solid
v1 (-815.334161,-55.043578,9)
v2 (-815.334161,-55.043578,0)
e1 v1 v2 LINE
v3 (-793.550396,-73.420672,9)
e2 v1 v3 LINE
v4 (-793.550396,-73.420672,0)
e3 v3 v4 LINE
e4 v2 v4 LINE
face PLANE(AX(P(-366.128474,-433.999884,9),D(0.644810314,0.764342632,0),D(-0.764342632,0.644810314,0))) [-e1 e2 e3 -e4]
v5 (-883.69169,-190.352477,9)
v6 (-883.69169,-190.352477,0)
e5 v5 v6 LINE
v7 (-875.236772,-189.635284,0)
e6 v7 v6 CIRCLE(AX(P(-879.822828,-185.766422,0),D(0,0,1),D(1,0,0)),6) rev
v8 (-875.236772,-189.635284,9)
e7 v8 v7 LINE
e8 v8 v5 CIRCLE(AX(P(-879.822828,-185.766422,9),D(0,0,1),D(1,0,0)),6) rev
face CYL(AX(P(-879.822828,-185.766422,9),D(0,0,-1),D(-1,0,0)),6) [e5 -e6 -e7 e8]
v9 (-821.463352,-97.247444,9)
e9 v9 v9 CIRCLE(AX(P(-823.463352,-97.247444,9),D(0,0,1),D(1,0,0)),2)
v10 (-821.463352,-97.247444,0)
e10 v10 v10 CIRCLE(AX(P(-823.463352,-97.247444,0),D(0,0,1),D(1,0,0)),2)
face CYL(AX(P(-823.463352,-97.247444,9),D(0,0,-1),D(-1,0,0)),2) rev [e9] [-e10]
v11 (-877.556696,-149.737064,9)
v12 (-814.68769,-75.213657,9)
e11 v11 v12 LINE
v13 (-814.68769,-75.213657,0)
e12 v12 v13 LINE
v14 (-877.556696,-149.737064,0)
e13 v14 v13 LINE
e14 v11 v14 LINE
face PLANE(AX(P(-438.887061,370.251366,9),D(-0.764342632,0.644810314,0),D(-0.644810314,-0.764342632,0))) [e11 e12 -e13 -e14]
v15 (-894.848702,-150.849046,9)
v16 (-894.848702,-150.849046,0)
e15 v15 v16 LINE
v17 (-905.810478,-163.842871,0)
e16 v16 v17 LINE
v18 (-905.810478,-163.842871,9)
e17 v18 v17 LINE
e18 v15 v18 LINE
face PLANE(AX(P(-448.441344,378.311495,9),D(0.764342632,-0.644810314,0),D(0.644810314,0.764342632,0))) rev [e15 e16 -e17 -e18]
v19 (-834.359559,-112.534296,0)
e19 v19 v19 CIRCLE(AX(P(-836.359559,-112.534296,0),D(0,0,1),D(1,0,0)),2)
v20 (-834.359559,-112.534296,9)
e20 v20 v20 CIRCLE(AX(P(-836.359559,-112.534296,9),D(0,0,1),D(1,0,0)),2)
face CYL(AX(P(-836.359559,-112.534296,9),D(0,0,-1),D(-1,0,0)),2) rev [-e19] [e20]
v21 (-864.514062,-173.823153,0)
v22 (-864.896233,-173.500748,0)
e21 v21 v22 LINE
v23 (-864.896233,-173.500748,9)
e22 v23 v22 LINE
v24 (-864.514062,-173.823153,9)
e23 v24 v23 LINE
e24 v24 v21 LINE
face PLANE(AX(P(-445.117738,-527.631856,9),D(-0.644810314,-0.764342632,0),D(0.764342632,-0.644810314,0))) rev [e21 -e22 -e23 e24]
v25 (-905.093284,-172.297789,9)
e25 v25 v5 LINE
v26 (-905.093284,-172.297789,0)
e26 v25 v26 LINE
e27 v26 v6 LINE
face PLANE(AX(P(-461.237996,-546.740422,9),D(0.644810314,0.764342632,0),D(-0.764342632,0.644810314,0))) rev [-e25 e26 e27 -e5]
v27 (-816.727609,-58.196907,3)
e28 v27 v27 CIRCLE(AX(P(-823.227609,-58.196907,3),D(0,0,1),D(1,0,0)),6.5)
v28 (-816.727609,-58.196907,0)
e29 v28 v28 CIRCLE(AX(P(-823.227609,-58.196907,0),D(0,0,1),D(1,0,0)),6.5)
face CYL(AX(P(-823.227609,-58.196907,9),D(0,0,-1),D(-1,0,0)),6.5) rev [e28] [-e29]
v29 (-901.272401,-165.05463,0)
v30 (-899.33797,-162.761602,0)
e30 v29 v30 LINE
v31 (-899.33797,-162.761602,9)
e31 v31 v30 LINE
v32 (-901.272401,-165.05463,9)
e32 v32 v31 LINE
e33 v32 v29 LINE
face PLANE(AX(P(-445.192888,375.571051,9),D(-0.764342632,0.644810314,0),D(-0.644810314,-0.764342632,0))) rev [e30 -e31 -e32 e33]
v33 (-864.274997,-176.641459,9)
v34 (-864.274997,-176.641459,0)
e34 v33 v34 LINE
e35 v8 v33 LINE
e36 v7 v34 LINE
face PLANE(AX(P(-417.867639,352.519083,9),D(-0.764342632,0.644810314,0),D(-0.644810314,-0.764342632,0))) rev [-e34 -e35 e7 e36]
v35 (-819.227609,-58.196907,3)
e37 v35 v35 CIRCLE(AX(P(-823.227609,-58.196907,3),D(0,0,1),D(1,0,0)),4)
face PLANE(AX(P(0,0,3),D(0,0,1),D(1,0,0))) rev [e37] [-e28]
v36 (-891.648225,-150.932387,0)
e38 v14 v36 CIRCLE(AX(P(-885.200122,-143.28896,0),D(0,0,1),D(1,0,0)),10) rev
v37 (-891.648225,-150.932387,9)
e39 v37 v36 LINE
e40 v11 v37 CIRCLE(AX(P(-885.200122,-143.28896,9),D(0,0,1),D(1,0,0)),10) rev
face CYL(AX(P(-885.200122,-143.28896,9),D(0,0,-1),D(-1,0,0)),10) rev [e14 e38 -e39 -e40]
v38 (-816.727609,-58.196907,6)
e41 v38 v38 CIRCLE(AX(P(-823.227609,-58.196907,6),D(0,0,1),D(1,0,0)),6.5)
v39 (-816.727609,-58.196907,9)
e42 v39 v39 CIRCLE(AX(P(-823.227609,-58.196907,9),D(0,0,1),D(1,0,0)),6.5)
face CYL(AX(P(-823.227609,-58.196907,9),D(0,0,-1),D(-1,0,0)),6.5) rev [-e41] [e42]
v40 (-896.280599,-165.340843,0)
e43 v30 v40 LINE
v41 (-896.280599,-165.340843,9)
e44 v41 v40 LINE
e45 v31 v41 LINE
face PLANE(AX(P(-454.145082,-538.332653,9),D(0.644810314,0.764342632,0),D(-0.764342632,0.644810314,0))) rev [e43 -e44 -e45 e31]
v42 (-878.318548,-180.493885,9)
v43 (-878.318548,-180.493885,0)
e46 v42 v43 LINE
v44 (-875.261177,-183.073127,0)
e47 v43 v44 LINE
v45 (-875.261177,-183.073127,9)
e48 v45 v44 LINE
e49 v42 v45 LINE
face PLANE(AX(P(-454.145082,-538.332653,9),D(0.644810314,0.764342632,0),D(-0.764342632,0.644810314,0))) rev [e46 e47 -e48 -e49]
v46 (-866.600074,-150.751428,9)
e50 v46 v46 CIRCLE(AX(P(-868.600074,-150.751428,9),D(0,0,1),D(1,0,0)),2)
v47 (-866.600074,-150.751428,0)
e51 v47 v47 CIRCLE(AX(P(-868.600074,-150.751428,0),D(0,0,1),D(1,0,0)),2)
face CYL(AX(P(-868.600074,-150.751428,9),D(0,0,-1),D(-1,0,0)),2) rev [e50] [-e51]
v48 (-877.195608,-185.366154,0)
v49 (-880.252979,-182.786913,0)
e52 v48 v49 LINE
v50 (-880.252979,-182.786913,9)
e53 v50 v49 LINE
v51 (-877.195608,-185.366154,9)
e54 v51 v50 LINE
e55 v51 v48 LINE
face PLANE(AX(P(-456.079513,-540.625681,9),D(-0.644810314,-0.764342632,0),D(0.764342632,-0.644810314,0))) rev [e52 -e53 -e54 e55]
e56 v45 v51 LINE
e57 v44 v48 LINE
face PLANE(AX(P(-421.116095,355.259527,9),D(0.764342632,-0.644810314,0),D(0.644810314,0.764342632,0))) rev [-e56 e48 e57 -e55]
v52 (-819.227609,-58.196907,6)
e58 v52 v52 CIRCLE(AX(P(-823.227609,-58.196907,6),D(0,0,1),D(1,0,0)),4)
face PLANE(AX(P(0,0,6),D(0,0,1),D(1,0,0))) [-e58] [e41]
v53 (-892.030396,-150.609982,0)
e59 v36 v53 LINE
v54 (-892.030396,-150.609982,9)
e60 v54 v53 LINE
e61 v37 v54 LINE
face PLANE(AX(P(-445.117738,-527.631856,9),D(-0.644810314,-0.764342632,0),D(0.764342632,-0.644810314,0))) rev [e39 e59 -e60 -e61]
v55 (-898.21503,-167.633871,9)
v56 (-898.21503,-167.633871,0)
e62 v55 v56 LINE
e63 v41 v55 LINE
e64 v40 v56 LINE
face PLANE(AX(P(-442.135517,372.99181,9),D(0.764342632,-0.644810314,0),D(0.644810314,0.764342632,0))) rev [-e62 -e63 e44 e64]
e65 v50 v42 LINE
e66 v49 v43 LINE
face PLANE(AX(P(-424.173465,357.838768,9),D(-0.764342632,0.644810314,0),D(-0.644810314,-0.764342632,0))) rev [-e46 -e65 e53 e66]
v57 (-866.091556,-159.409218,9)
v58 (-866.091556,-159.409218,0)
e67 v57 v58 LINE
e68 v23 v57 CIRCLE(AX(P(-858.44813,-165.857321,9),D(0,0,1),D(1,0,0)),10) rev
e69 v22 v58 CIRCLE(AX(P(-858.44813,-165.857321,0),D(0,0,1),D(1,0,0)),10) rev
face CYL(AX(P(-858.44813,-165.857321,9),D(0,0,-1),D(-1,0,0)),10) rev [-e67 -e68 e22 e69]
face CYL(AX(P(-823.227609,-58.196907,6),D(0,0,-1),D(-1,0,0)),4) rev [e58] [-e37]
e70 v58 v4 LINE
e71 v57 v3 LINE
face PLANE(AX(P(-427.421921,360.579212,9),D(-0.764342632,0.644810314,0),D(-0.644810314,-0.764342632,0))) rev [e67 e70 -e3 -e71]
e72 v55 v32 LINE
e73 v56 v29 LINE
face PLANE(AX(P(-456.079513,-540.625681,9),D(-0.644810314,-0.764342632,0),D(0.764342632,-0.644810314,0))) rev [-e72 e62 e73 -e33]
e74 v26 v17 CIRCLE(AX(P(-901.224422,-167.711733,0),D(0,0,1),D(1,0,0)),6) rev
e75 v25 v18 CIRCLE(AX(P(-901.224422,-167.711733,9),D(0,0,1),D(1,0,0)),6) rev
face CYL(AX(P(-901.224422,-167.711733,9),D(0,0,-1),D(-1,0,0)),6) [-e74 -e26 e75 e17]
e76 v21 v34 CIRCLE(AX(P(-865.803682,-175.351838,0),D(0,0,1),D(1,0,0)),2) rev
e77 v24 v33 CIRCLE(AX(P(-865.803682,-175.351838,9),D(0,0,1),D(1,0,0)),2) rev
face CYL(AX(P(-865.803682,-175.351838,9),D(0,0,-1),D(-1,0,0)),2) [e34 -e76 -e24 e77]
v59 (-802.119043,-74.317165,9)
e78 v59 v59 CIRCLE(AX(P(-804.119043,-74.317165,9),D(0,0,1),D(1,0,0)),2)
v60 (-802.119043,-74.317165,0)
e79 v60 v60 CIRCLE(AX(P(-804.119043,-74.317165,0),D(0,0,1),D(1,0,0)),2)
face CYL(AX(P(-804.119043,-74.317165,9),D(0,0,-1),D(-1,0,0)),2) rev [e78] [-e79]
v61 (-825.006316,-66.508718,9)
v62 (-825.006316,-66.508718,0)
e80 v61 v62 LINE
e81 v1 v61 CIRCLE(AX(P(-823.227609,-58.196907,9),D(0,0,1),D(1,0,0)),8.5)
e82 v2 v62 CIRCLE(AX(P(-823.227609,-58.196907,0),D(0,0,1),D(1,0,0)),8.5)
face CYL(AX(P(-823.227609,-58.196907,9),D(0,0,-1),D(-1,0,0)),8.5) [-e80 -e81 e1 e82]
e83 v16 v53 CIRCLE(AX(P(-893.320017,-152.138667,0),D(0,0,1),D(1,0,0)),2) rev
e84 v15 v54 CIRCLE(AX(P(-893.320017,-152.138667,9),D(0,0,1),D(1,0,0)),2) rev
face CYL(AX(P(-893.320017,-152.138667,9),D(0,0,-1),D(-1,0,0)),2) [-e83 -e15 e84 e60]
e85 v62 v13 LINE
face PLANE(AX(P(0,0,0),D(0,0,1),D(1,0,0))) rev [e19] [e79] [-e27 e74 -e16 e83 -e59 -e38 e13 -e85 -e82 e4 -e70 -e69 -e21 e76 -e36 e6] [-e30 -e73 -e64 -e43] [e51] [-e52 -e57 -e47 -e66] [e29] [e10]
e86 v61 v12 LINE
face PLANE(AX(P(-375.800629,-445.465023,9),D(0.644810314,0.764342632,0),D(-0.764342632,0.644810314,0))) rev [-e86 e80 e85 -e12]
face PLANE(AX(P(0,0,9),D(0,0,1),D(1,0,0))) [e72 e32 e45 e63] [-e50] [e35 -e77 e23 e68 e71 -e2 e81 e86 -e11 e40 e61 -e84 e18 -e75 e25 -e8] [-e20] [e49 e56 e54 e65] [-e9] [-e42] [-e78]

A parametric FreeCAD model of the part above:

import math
import FreeCAD as App
import Part
import Sketcher
from FreeCAD import Vector
Q = App.Units.Quantity

doc = App.newDocument("Part")
body = doc.addObject("PartDesign::Body", "Body")

# Sketch on XY plane
sketch1 = body.newObject("Sketcher::SketchObject", "Sketch")
sketch1.AttachmentSupport = (doc.getObject("XY_Plane"), [""])
sketch1.MapMode = "FlatFace"
sketch1.addGeometry([
    Part.LineSegment(Vector(-793.6, -73.4, 0), Vector(-815.3, -55, 0)),  # 0
    Part.ArcOfCircle(Part.Circle(Vector(-823.2, -58.2, 0), Vector(0, 0, 1), 8.5), math.radians(22), math.radians(258)),  # 1
    Part.LineSegment(Vector(-825, -66.5, 0), Vector(-814.7, -75.2, 0)),  # 2
    Part.LineSegment(Vector(-814.7, -75.2, 0), Vector(-877.6, -149.7, 0)),  # 3
    Part.ArcOfCircle(Part.Circle(Vector(-885.2, -143.3, 0), Vector(0, 0, 1), 10), math.radians(-130), math.radians(-40)),  # 4
    Part.LineSegment(Vector(-891.6, -150.9, 0), Vector(-892, -150.6, 0)),  # 5
    Part.ArcOfCircle(Part.Circle(Vector(-893.3, -152.1, 0), Vector(0, 0, 1), 2), math.radians(50), math.radians(140)),  # 6
    Part.LineSegment(Vector(-894.8, -150.8, 0), Vector(-905.8, -163.8, 0)),  # 7
    Part.ArcOfCircle(Part.Circle(Vector(-901.2, -167.7, 0), Vector(0, 0, 1), 6), math.radians(140), math.radians(230)),  # 8
    Part.LineSegment(Vector(-905.1, -172.3, 0), Vector(-883.7, -190.4, 0)),  # 9
    Part.ArcOfCircle(Part.Circle(Vector(-879.8, -185.8, 0), Vector(0, 0, 1), 6), math.radians(-130), math.radians(-40)),  # 10
    Part.LineSegment(Vector(-875.2, -189.6, 0), Vector(-864.3, -176.6, 0)),  # 11
    Part.ArcOfCircle(Part.Circle(Vector(-865.8, -175.4, 0), Vector(0, 0, 1), 2), math.radians(-40), math.radians(50)),  # 12
    Part.LineSegment(Vector(-864.5, -173.8, 0), Vector(-864.9, -173.5, 0)),  # 13
    Part.ArcOfCircle(Part.Circle(Vector(-858.4, -165.9, 0), Vector(0, 0, 1), 10), math.radians(140), math.radians(230)),  # 14
    Part.LineSegment(Vector(-866.1, -159.4, 0), Vector(-793.6, -73.4, 0)),  # 15
    Part.LineSegment(Vector(-875.3, -183.1, 0), Vector(-877.2, -185.4, 0)),  # 16
    Part.LineSegment(Vector(-877.2, -185.4, 0), Vector(-880.3, -182.8, 0)),  # 17
    Part.LineSegment(Vector(-880.3, -182.8, 0), Vector(-878.3, -180.5, 0)),  # 18
    Part.LineSegment(Vector(-878.3, -180.5, 0), Vector(-875.3, -183.1, 0)),  # 19
    Part.LineSegment(Vector(-896.3, -165.3, 0), Vector(-898.2, -167.6, 0)),  # 20
    Part.LineSegment(Vector(-898.2, -167.6, 0), Vector(-901.3, -165.1, 0)),  # 21
    Part.LineSegment(Vector(-901.3, -165.1, 0), Vector(-899.3, -162.8, 0)),  # 22
    Part.LineSegment(Vector(-899.3, -162.8, 0), Vector(-896.3, -165.3, 0)),  # 23
    Part.Circle(Vector(-868.6, -150.8, 0), Vector(0, 0, 1), 2),  # 24
    Part.Circle(Vector(-836.4, -112.5, 0), Vector(0, 0, 1), 2),  # 25
    Part.Circle(Vector(-823.5, -97.2, 0), Vector(0, 0, 1), 2),  # 26
    Part.Circle(Vector(-804.1, -74.3, 0), Vector(0, 0, 1), 2),  # 27
    Part.Circle(Vector(-823.2, -58.2, 0), Vector(0, 0, 1), 6.5),  # 28
], False)
sketch1.addConstraint([
    Sketcher.Constraint("Coincident", 0, 2, 1, 1),
    Sketcher.Constraint("Coincident", 1, 2, 2, 1),
    Sketcher.Constraint("Coincident", 2, 2, 3, 1),
    Sketcher.Constraint("Tangent", 3, 2, 4, 2),
    Sketcher.Constraint("Tangent", 4, 1, 5, 1),
    Sketcher.Constraint("Tangent", 5, 2, 6, 1),
    Sketcher.Constraint("Tangent", 6, 2, 7, 1),
    Sketcher.Constraint("Tangent", 7, 2, 8, 1),
    Sketcher.Constraint("Tangent", 8, 2, 9, 1),
    Sketcher.Constraint("Tangent", 9, 2, 10, 1),
    Sketcher.Constraint("Tangent", 10, 2, 11, 1),
    Sketcher.Constraint("Tangent", 11, 2, 12, 1),
    Sketcher.Constraint("Tangent", 12, 2, 13, 1),
    Sketcher.Constraint("Tangent", 13, 2, 14, 2),
    Sketcher.Constraint("Tangent", 14, 1, 15, 1),
    Sketcher.Constraint("Coincident", 15, 2, 0, 1),
    Sketcher.Constraint("Coincident", 16, 2, 17, 1),
    Sketcher.Constraint("Coincident", 17, 2, 18, 1),
    Sketcher.Constraint("Coincident", 18, 2, 19, 1),
    Sketcher.Constraint("Coincident", 19, 2, 16, 1),
    Sketcher.Constraint("Coincident", 20, 2, 21, 1),
    Sketcher.Constraint("Coincident", 21, 2, 22, 1),
    Sketcher.Constraint("Coincident", 22, 2, 23, 1),
    Sketcher.Constraint("Coincident", 23, 2, 20, 1),
    Sketcher.Constraint("Coincident", 28, 3, 1, 3),
    Sketcher.Constraint("Equal", 8, 10),
    Sketcher.Constraint("Equal", 6, 12),
    Sketcher.Constraint("Equal", 4, 14),
    Sketcher.Constraint("Equal", 12, 24),
    Sketcher.Constraint("Equal", 24, 25),
    Sketcher.Constraint("Equal", 25, 26),
    Sketcher.Constraint("Equal", 26, 27),
    Sketcher.Constraint("Parallel", 0, 2),
    Sketcher.Constraint("Perpendicular", 2, 3),
    Sketcher.Constraint("Perpendicular", 3, 5),
    Sketcher.Constraint("Perpendicular", 5, 7),
    Sketcher.Constraint("Perpendicular", 7, 9),
    Sketcher.Constraint("Perpendicular", 9, 11),
    Sketcher.Constraint("Perpendicular", 11, 13),
    Sketcher.Constraint("Perpendicular", 13, 15),
    Sketcher.Constraint("Parallel", 15, 16),
    Sketcher.Constraint("Perpendicular", 16, 17),
    Sketcher.Constraint("Perpendicular", 17, 18),
    Sketcher.Constraint("Perpendicular", 18, 19),
    Sketcher.Constraint("Perpendicular", 19, 20),
    Sketcher.Constraint("Perpendicular", 20, 21),
    Sketcher.Constraint("Perpendicular", 21, 22),
    Sketcher.Constraint("Perpendicular", 22, 23),
    Sketcher.Constraint("Equal", 7, 11),
    Sketcher.Constraint("Equal", 5, 13),
    Sketcher.Constraint("Equal", 18, 20),
    Sketcher.Constraint("Equal", 19, 21),
    Sketcher.Constraint("Diameter", 24, Q("4 mm")),
    Sketcher.Constraint("Diameter", 28, Q("13 mm")),
    Sketcher.Constraint("Radius", 4, Q("10 mm")),
    Sketcher.Constraint("Radius", 8, Q("6 mm")),
    Sketcher.Constraint("Radius", 1, Q("8.5 mm")),
    Sketcher.Constraint("Distance", 7, Q("17 mm")),
    Sketcher.Constraint("Distance", 9, Q("28 mm")),
    Sketcher.Constraint("Distance", 16, Q("3 mm")),
    Sketcher.Constraint("Distance", 17, Q("4 mm")),
    Sketcher.Constraint("Distance", 0, Q("28.5 mm")),
    Sketcher.Constraint("Distance", 2, Q("13.5 mm")),
    Sketcher.Constraint("Distance", 3, Q("97.5 mm")),
    Sketcher.Constraint("Distance", 5, Q("0.5 mm")),
    Sketcher.Constraint("Distance", 15, Q("112.5 mm")),
    Sketcher.Constraint("DistanceY", 20, 2, 7, 2, Q("3.791 mm")),
    Sketcher.Constraint("DistanceX", 21, 2, -1, 1, Q("901.272401 mm")),
    Sketcher.Constraint("DistanceY", 22, 2, -1, 1, Q("162.761602 mm")),
    Sketcher.Constraint("DistanceX", 8, 3, 4, 3, Q("16.0243 mm")),
    Sketcher.Constraint("DistanceY", 10, 2, 18, 2, Q("9.141398 mm")),
    Sketcher.Constraint("DistanceX", 1, 3, -1, 1, Q("823.227609 mm")),
    Sketcher.Constraint("DistanceX", 25, 3, -1, 1, Q("836.359559 mm")),
    Sketcher.Constraint("DistanceX", 17, 2, -1, 1, Q("880.252979 mm")),
    Sketcher.Constraint("DistanceY", 6, 3, 24, 3, Q("1.387239 mm")),
    Sketcher.Constraint("DistanceY", 24, 3, 25, 3, Q("38.217132 mm")),
    Sketcher.Constraint("DistanceX", 4, 3, 26, 3, Q("61.73677 mm")),
    Sketcher.Constraint("DistanceX", 26, 3, 27, 3, Q("19.344309 mm")),
    Sketcher.Constraint("DistanceY", 26, 3, 27, 3, Q("22.930279 mm")),
    Sketcher.Constraint("DistanceY", 25, 3, 27, 3, Q("38.217132 mm")),
    Sketcher.Constraint("DistanceX", 24, 3, 27, 3, Q("64.481031 mm")),
])
pad1 = body.newObject("PartDesign::Pad", "Pad")
pad1.Profile = sketch1
pad1.Length = 9

# Sketch on XY plane
sketch2 = body.newObject("Sketcher::SketchObject", "Sketch001")
sketch2.AttachmentSupport = (doc.getObject("XY_Plane"), [""])
sketch2.MapMode = "FlatFace"
sketch2.AttachmentOffset = App.Placement(Vector(0, 0, 3), App.Rotation())
sketch2.addGeometry([
    Part.Circle(Vector(-823.2, -58.2, 0), Vector(0, 0, 1), 6.5),
    Part.Circle(Vector(-823.2, -58.2, 0), Vector(0, 0, 1), 4),
], False)
sketch2.addConstraint([
    Sketcher.Constraint("Coincident", 1, 3, 0, 3),
    Sketcher.Constraint("Diameter", 0, Q("13 mm")),
    Sketcher.Constraint("Diameter", 1, Q("8 mm")),
    Sketcher.Constraint("DistanceX", 0, 3, -1, 1, Q("823.227609 mm")),
    Sketcher.Constraint("DistanceY", 0, 3, -1, 1, Q("58.196907 mm")),
])
pad2 = body.newObject("PartDesign::Pad", "Pad001")
pad2.Profile = sketch2
pad2.Length = 3

doc.recompute()
